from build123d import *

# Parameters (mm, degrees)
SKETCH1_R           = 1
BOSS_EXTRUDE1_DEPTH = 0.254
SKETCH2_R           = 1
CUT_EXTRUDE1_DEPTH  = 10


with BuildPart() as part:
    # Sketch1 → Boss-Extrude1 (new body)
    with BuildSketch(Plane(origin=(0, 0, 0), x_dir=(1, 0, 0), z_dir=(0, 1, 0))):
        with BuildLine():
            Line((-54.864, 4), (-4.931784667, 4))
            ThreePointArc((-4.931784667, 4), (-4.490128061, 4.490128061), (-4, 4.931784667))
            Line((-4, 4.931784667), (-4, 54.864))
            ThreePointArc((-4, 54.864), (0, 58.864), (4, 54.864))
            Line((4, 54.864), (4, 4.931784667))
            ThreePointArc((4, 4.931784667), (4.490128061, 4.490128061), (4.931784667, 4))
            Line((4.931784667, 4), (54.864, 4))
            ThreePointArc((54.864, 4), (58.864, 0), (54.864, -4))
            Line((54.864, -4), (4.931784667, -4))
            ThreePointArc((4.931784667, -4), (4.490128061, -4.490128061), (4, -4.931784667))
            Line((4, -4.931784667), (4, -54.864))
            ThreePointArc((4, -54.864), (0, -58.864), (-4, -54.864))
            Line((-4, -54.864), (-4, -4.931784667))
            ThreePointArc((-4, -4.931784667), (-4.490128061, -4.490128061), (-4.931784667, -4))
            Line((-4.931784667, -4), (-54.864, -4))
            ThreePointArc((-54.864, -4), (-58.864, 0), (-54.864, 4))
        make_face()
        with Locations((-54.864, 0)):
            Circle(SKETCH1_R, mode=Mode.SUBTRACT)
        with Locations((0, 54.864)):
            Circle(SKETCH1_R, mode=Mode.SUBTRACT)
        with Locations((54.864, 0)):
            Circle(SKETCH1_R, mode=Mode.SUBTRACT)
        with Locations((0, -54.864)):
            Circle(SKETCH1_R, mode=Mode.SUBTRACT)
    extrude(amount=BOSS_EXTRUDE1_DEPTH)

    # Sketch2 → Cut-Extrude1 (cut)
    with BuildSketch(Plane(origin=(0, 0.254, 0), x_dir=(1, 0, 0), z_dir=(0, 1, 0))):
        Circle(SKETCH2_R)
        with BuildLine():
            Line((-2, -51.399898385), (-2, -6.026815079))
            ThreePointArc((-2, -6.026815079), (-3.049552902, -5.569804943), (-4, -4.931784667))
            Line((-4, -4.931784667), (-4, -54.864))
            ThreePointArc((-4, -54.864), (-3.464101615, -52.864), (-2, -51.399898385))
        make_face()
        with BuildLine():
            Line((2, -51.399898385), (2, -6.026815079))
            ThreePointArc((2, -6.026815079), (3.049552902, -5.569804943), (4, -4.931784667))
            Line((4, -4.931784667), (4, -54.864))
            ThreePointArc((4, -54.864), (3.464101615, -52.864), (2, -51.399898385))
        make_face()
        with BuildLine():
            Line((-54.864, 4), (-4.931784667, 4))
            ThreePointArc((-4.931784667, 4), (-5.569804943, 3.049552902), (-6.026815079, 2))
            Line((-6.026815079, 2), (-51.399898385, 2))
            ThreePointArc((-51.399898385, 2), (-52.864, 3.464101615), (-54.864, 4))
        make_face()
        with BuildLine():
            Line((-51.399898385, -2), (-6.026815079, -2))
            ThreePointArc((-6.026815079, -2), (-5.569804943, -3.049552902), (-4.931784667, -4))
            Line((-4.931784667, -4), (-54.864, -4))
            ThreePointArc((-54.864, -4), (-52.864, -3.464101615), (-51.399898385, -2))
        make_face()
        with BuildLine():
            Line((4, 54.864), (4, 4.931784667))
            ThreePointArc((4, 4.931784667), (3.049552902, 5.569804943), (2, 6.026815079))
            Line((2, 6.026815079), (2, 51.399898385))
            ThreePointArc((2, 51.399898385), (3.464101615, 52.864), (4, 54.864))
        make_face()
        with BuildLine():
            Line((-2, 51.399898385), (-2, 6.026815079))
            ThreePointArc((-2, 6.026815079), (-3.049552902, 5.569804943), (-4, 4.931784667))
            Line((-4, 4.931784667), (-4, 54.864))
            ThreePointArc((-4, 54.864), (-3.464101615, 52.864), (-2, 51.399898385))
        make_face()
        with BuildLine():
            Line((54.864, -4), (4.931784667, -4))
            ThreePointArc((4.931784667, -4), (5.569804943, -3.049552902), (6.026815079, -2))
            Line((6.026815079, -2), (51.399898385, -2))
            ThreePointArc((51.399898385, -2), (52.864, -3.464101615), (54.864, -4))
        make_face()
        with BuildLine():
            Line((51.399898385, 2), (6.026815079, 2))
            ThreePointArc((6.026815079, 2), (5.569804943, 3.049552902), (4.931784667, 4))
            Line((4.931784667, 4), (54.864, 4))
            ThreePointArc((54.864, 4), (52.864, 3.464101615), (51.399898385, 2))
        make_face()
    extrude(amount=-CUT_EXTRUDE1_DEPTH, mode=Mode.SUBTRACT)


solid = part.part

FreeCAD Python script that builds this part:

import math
import FreeCAD as App
import Part
import Sketcher

V = App.Vector
Q = App.Units.Quantity

doc = App.newDocument("Part")
body = doc.addObject("PartDesign::Body", "Body")

sketch1 = body.newObject("Sketcher::SketchObject", "Sketch")
sketch1.AttachmentSupport = (doc.getObject("XZ_Plane"), [""])
sketch1.MapMode = "FlatFace"
sketch1.addGeometry(Part.LineSegment(V(-4.9, -4, 0), V(-54.9, -4, 0)), False)
sketch1.addGeometry(Part.ArcOfCircle(Part.Circle(V(-54.9, 0, 0), V(0, 0, 1), 4), math.radians(90), math.radians(270)), False)
sketch1.addGeometry(Part.LineSegment(V(-54.9, 4, 0), V(-4.9, 4, 0)), False)
sketch1.addGeometry(Part.ArcOfCircle(Part.Circle(V(0, 0, 0), V(0, 0, 1), 6.3), math.radians(129.04), math.radians(140.96)), False)
sketch1.addGeometry(Part.LineSegment(V(-4, 4.9, 0), V(-4, 54.9, 0)), False)
sketch1.addGeometry(Part.ArcOfCircle(Part.Circle(V(0, 54.9, 0), V(0, 0, 1), 4), math.radians(0), math.radians(180)), False)
sketch1.addGeometry(Part.LineSegment(V(4, 54.9, 0), V(4, 4.9, 0)), False)
sketch1.addGeometry(Part.ArcOfCircle(Part.Circle(V(0, 0, 0), V(0, 0, 1), 6.3), math.radians(39.04), math.radians(50.96)), False)
sketch1.addGeometry(Part.LineSegment(V(4.9, 4, 0), V(54.9, 4, 0)), False)
sketch1.addGeometry(Part.ArcOfCircle(Part.Circle(V(54.9, 0, 0), V(0, 0, 1), 4), math.radians(-90), math.radians(90)), False)
sketch1.addGeometry(Part.LineSegment(V(54.9, -4, 0), V(4.9, -4, 0)), False)
sketch1.addGeometry(Part.ArcOfCircle(Part.Circle(V(0, 0, 0), V(0, 0, 1), 6.3), math.radians(-50.96), math.radians(-39.04)), False)
sketch1.addGeometry(Part.LineSegment(V(4, -4.9, 0), V(4, -54.9, 0)), False)
sketch1.addGeometry(Part.ArcOfCircle(Part.Circle(V(0, -54.9, 0), V(0, 0, 1), 4), math.radians(180), math.radians(360)), False)
sketch1.addGeometry(Part.LineSegment(V(-4, -54.9, 0), V(-4, -4.9, 0)), False)
sketch1.addGeometry(Part.ArcOfCircle(Part.Circle(V(0, 0, 0), V(0, 0, 1), 6.3), math.radians(-140.96), math.radians(-129.04)), False)
sketch1.addGeometry(Part.Circle(V(0, 54.9, 0), V(0, 0, 1), 1), False)
sketch1.addGeometry(Part.Circle(V(54.9, 0, 0), V(0, 0, 1), 1), False)
sketch1.addGeometry(Part.Circle(V(-54.9, 0, 0), V(0, 0, 1), 1), False)
sketch1.addGeometry(Part.Circle(V(0, -54.9, 0), V(0, 0, 1), 1), False)
sketch1.addConstraint(Sketcher.Constraint("Tangent", 0, 2, 1, 2))
sketch1.addConstraint(Sketcher.Constraint("Tangent", 1, 1, 2, 1))
sketch1.addConstraint(Sketcher.Constraint("Coincident", 2, 2, 3, 2))
sketch1.addConstraint(Sketcher.Constraint("Coincident", 3, 1, 4, 1))
sketch1.addConstraint(Sketcher.Constraint("Tangent", 4, 2, 5, 2))
sketch1.addConstraint(Sketcher.Constraint("Tangent", 5, 1, 6, 1))
sketch1.addConstraint(Sketcher.Constraint("Coincident", 6, 2, 7, 2))
sketch1.addConstraint(Sketcher.Constraint("Coincident", 7, 1, 8, 1))
sketch1.addConstraint(Sketcher.Constraint("Tangent", 8, 2, 9, 2))
sketch1.addConstraint(Sketcher.Constraint("Tangent", 9, 1, 10, 1))
sketch1.addConstraint(Sketcher.Constraint("Coincident", 10, 2, 11, 2))
sketch1.addConstraint(Sketcher.Constraint("Coincident", 11, 1, 12, 1))
sketch1.addConstraint(Sketcher.Constraint("Tangent", 12, 2, 13, 2))
sketch1.addConstraint(Sketcher.Constraint("Tangent", 13, 1, 14, 1))
sketch1.addConstraint(Sketcher.Constraint("Coincident", 14, 2, 15, 2))
sketch1.addConstraint(Sketcher.Constraint("Coincident", 15, 1, 0, 1))
sketch1.addConstraint(Sketcher.Constraint("Horizontal", 0))
sketch1.addConstraint(Sketcher.Constraint("Horizontal", 2))
sketch1.addConstraint(Sketcher.Constraint("Vertical", 4))
sketch1.addConstraint(Sketcher.Constraint("Vertical", 6))
sketch1.addConstraint(Sketcher.Constraint("Horizontal", 8))
sketch1.addConstraint(Sketcher.Constraint("Horizontal", 10))
sketch1.addConstraint(Sketcher.Constraint("Vertical", 12))
sketch1.addConstraint(Sketcher.Constraint("Vertical", 14))
sketch1.addConstraint(Sketcher.Constraint("Coincident", 3, 3, -1, 1))
sketch1.addConstraint(Sketcher.Constraint("Coincident", 7, 3, -1, 1))
sketch1.addConstraint(Sketcher.Constraint("Coincident", 11, 3, -1, 1))
sketch1.addConstraint(Sketcher.Constraint("Coincident", 15, 3, -1, 1))
sketch1.addConstraint(Sketcher.Constraint("Coincident", 16, 3, 5, 3))
sketch1.addConstraint(Sketcher.Constraint("Coincident", 17, 3, 9, 3))
sketch1.addConstraint(Sketcher.Constraint("Coincident", 18, 3, 1, 3))
sketch1.addConstraint(Sketcher.Constraint("Coincident", 19, 3, 13, 3))
sketch1.addConstraint(Sketcher.Constraint("Equal", 1, 5))
sketch1.addConstraint(Sketcher.Constraint("Equal", 3, 7))
sketch1.addConstraint(Sketcher.Constraint("Equal", 5, 9))
sketch1.addConstraint(Sketcher.Constraint("Equal", 7, 11))
sketch1.addConstraint(Sketcher.Constraint("Equal", 9, 13))
sketch1.addConstraint(Sketcher.Constraint("Equal", 11, 15))
sketch1.addConstraint(Sketcher.Constraint("Equal", 16, 17))
sketch1.addConstraint(Sketcher.Constraint("Equal", 17, 18))
sketch1.addConstraint(Sketcher.Constraint("Equal", 18, 19))
sketch1.addConstraint(Sketcher.Constraint("Symmetric", 1, 3, 9, 3, -1, 1))
sketch1.addConstraint(Sketcher.Constraint("Symmetric", 5, 3, 13, 3, -1, 1))
sketch1.addConstraint(Sketcher.Constraint("PointOnObject", 1, 3, -1))
sketch1.addConstraint(Sketcher.Constraint("PointOnObject", 5, 3, -2))
sketch1.addConstraint(Sketcher.Constraint("Equal", 10, 4))
sketch1.addConstraint(Sketcher.Constraint("Diameter", 16, Q("2 mm")))
sketch1.addConstraint(Sketcher.Constraint("Radius", 1, Q("4 mm")))
sketch1.addConstraint(Sketcher.Constraint("Radius", 3, Q("6.35 mm")))
sketch1.addConstraint(Sketcher.Constraint("DistanceX", 1, 3, -1, 1, Q("54.864 mm")))
pad1 = body.newObject("PartDesign::Pad", "Pad")
pad1.Profile = sketch1
pad1.Length = 0.254
pad1.Reversed = True

sketch2 = body.newObject("Sketcher::SketchObject", "Sketch001")
sketch2.AttachmentSupport = (doc.getObject("XZ_Plane"), [""])
sketch2.MapMode = "FlatFace"
sketch2.AttachmentOffset = App.Placement(V(0, 0, -0.254), App.Rotation())
sketch2.addGeometry(Part.Circle(V(0, 0, 0), V(0, 0, 1), 1), False)
sketch2.addGeometry(Part.LineSegment(V(-2, 51.4, 0), V(-2, 6, 0)), False)
sketch2.addGeometry(Part.ArcOfCircle(Part.Circle(V(0, 0, 0), V(0, 0, 1), 6.3), math.radians(108), math.radians(129)), False)
sketch2.addGeometry(Part.LineSegment(V(-4, 4.9, 0), V(-4, 54.9, 0)), False)
sketch2.addGeometry(Part.ArcOfCircle(Part.Circle(V(0, 54.9, 0), V(0, 0, 1), 4), math.radians(180), math.radians(240)), False)
sketch2.addGeometry(Part.LineSegment(V(2, 6, 0), V(2, 51.4, 0)), False)
sketch2.addGeometry(Part.ArcOfCircle(Part.Circle(V(0, 54.9, 0), V(0, 0, 1), 4), math.radians(-60), math.radians(0)), False)
sketch2.addGeometry(Part.LineSegment(V(4, 54.9, 0), V(4, 4.9, 0)), False)
sketch2.addGeometry(Part.ArcOfCircle(Part.Circle(V(0, 0, 0), V(0, 0, 1), 6.3), math.radians(51), math.radians(72)), False)
sketch2.addGeometry(Part.LineSegment(V(-4.9, -4, 0), V(-54.9, -4, 0)), False)
sketch2.addGeometry(Part.ArcOfCircle(Part.Circle(V(-54.9, 0, 0), V(0, 0, 1), 4), math.radians(-90), math.radians(-30)), False)
sketch2.addGeometry(Part.LineSegment(V(-51.4, -2, 0), V(-6, -2, 0)), False)
sketch2.addGeometry(Part.ArcOfCircle(Part.Circle(V(0, 0, 0), V(0, 0, 1), 6.3), math.radians(-162), math.radians(-141)), False)
sketch2.addGeometry(Part.LineSegment(V(-6, 2, 0), V(-51.4, 2, 0)), False)
sketch2.addGeometry(Part.ArcOfCircle(Part.Circle(V(-54.9, 0, 0), V(0, 0, 1), 4), math.radians(30), math.radians(90)), False)
sketch2.addGeometry(Part.LineSegment(V(-54.9, 4, 0), V(-4.9, 4, 0)), False)
sketch2.addGeometry(Part.ArcOfCircle(Part.Circle(V(0, 0, 0), V(0, 0, 1), 6.3), math.radians(141), math.radians(162)), False)
sketch2.addGeometry(Part.LineSegment(V(4, -4.9, 0), V(4, -54.9, 0)), False)
sketch2.addGeometry(Part.ArcOfCircle(Part.Circle(V(0, -54.9, 0), V(0, 0, 1), 4), math.radians(0), math.radians(60)), False)
sketch2.addGeometry(Part.LineSegment(V(2, -51.4, 0), V(2, -6, 0)), False)
sketch2.addGeometry(Part.ArcOfCircle(Part.Circle(V(0, 0, 0), V(0, 0, 1), 6.3), math.radians(-72), math.radians(-51)), False)
sketch2.addGeometry(Part.LineSegment(V(-2, -6, 0), V(-2, -51.4, 0)), False)
sketch2.addGeometry(Part.ArcOfCircle(Part.Circle(V(0, -54.9, 0), V(0, 0, 1), 4), math.radians(120), math.radians(180)), False)
sketch2.addGeometry(Part.LineSegment(V(-4, -54.9, 0), V(-4, -4.9, 0)), False)
sketch2.addGeometry(Part.ArcOfCircle(Part.Circle(V(0, 0, 0), V(0, 0, 1), 6.3), math.radians(-129), math.radians(-108)), False)
sketch2.addGeometry(Part.LineSegment(V(4.9, 4, 0), V(54.9, 4, 0)), False)
sketch2.addGeometry(Part.ArcOfCircle(Part.Circle(V(54.9, 0, 0), V(0, 0, 1), 4), math.radians(90), math.radians(150)), False)
sketch2.addGeometry(Part.LineSegment(V(51.4, 2, 0), V(6, 2, 0)), False)
sketch2.addGeometry(Part.ArcOfCircle(Part.Circle(V(0, 0, 0), V(0, 0, 1), 6.3), math.radians(18), math.radians(39)), False)
sketch2.addGeometry(Part.LineSegment(V(6, -2, 0), V(51.4, -2, 0)), False)
sketch2.addGeometry(Part.ArcOfCircle(Part.Circle(V(54.9, 0, 0), V(0, 0, 1), 4), math.radians(-150), math.radians(-90)), False)
sketch2.addGeometry(Part.LineSegment(V(54.9, -4, 0), V(4.9, -4, 0)), False)
sketch2.addGeometry(Part.ArcOfCircle(Part.Circle(V(0, 0, 0), V(0, 0, 1), 6.3), math.radians(-39), math.radians(-18)), False)
sketch2.addConstraint(Sketcher.Constraint("Coincident", 1, 2, 2, 1))
sketch2.addConstraint(Sketcher.Constraint("Coincident", 2, 2, 3, 1))
sketch2.addConstraint(Sketcher.Constraint("Tangent", 3, 2, 4, 1))
sketch2.addConstraint(Sketcher.Constraint("Coincident", 4, 2, 1, 1))
sketch2.addConstraint(Sketcher.Constraint("Coincident", 5, 2, 6, 1))
sketch2.addConstraint(Sketcher.Constraint("Tangent", 6, 2, 7, 1))
sketch2.addConstraint(Sketcher.Constraint("Coincident", 7, 2, 8, 1))
sketch2.addConstraint(Sketcher.Constraint("Coincident", 8, 2, 5, 1))
sketch2.addConstraint(Sketcher.Constraint("Tangent", 9, 2, 10, 1))
sketch2.addConstraint(Sketcher.Constraint("Coincident", 10, 2, 11, 1))
sketch2.addConstraint(Sketcher.Constraint("Coincident", 11, 2, 12, 1))
sketch2.addConstraint(Sketcher.Constraint("Coincident", 12, 2, 9, 1))
sketch2.addConstraint(Sketcher.Constraint("Coincident", 13, 2, 14, 1))
sketch2.addConstraint(Sketcher.Constraint("Tangent", 14, 2, 15, 1))
sketch2.addConstraint(Sketcher.Constraint("Coincident", 15, 2, 16, 1))
sketch2.addConstraint(Sketcher.Constraint("Coincident", 16, 2, 13, 1))
sketch2.addConstraint(Sketcher.Constraint("Tangent", 17, 2, 18, 1))
sketch2.addConstraint(Sketcher.Constraint("Coincident", 18, 2, 19, 1))
sketch2.addConstraint(Sketcher.Constraint("Coincident", 19, 2, 20, 1))
sketch2.addConstraint(Sketcher.Constraint("Coincident", 20, 2, 17, 1))
sketch2.addConstraint(Sketcher.Constraint("Coincident", 21, 2, 22, 1))
sketch2.addConstraint(Sketcher.Constraint("Tangent", 22, 2, 23, 1))
sketch2.addConstraint(Sketcher.Constraint("Coincident", 23, 2, 24, 1))
sketch2.addConstraint(Sketcher.Constraint("Coincident", 24, 2, 21, 1))
sketch2.addConstraint(Sketcher.Constraint("Tangent", 25, 2, 26, 1))
sketch2.addConstraint(Sketcher.Constraint("Coincident", 26, 2, 27, 1))
sketch2.addConstraint(Sketcher.Constraint("Coincident", 27, 2, 28, 1))
sketch2.addConstraint(Sketcher.Constraint("Coincident", 28, 2, 25, 1))
sketch2.addConstraint(Sketcher.Constraint("Coincident", 29, 2, 30, 1))
sketch2.addConstraint(Sketcher.Constraint("Tangent", 30, 2, 31, 1))
sketch2.addConstraint(Sketcher.Constraint("Coincident", 31, 2, 32, 1))
sketch2.addConstraint(Sketcher.Constraint("Coincident", 32, 2, 29, 1))
sketch2.addConstraint(Sketcher.Constraint("Vertical", 1))
sketch2.addConstraint(Sketcher.Constraint("Vertical", 3))
sketch2.addConstraint(Sketcher.Constraint("Vertical", 5))
sketch2.addConstraint(Sketcher.Constraint("Vertical", 7))
sketch2.addConstraint(Sketcher.Constraint("Horizontal", 9))
sketch2.addConstraint(Sketcher.Constraint("Horizontal", 11))
sketch2.addConstraint(Sketcher.Constraint("Horizontal", 13))
sketch2.addConstraint(Sketcher.Constraint("Horizontal", 15))
sketch2.addConstraint(Sketcher.Constraint("Vertical", 17))
sketch2.addConstraint(Sketcher.Constraint("Vertical", 19))
sketch2.addConstraint(Sketcher.Constraint("Vertical", 21))
sketch2.addConstraint(Sketcher.Constraint("Vertical", 23))
sketch2.addConstraint(Sketcher.Constraint("Horizontal", 25))
sketch2.addConstraint(Sketcher.Constraint("Horizontal", 27))
sketch2.addConstraint(Sketcher.Constraint("Horizontal", 29))
sketch2.addConstraint(Sketcher.Constraint("Horizontal", 31))
sketch2.addConstraint(Sketcher.Constraint("Coincident", 0, 3, -1, 1))
sketch2.addConstraint(Sketcher.Constraint("Coincident", 2, 3, -1, 1))
sketch2.addConstraint(Sketcher.Constraint("Coincident", 8, 3, -1, 1))
sketch2.addConstraint(Sketcher.Constraint("Coincident", 12, 3, -1, 1))
sketch2.addConstraint(Sketcher.Constraint("Coincident", 16, 3, -1, 1))
sketch2.addConstraint(Sketcher.Constraint("Coincident", 20, 3, -1, 1))
sketch2.addConstraint(Sketcher.Constraint("Coincident", 24, 3, -1, 1))
sketch2.addConstraint(Sketcher.Constraint("Coincident", 28, 3, -1, 1))
sketch2.addConstraint(Sketcher.Constraint("Coincident", 32, 3, -1, 1))
sketch2.addConstraint(Sketcher.Constraint("Coincident", 6, 3, 4, 3))
sketch2.addConstraint(Sketcher.Constraint("Coincident", 14, 3, 10, 3))
sketch2.addConstraint(Sketcher.Constraint("Coincident", 22, 3, 18, 3))
sketch2.addConstraint(Sketcher.Constraint("Coincident", 30, 3, 26, 3))
sketch2.addConstraint(Sketcher.Constraint("Equal", 4, 6))
sketch2.addConstraint(Sketcher.Constraint("Equal", 2, 8))
sketch2.addConstraint(Sketcher.Constraint("Equal", 6, 10))
sketch2.addConstraint(Sketcher.Constraint("Equal", 8, 12))
sketch2.addConstraint(Sketcher.Constraint("Equal", 10, 14))
sketch2.addConstraint(Sketcher.Constraint("Equal", 12, 16))
sketch2.addConstraint(Sketcher.Constraint("Equal", 14, 18))
sketch2.addConstraint(Sketcher.Constraint("Equal", 16, 20))
sketch2.addConstraint(Sketcher.Constraint("Equal", 18, 22))
sketch2.addConstraint(Sketcher.Constraint("Equal", 20, 24))
sketch2.addConstraint(Sketcher.Constraint("Equal", 22, 26))
sketch2.addConstraint(Sketcher.Constraint("Equal", 24, 28))
sketch2.addConstraint(Sketcher.Constraint("Equal", 26, 30))
sketch2.addConstraint(Sketcher.Constraint("Equal", 28, 32))
sketch2.addConstraint(Sketcher.Constraint("Symmetric", 4, 3, 18, 3, -1, 1))
sketch2.addConstraint(Sketcher.Constraint("Symmetric", 10, 3, 26, 3, -1, 1))
sketch2.addConstraint(Sketcher.Constraint("Symmetric", 4, 2, 5, 2, -2))
sketch2.addConstraint(Sketcher.Constraint("Symmetric", 13, 2, 26, 2, -2))
sketch2.addConstraint(Sketcher.Constraint("Horizontal", 18, 2, 21, 2))
sketch2.addConstraint(Sketcher.Constraint("Horizontal", 11, 2, 29, 2))
sketch2.addConstraint(Sketcher.Constraint("Vertical", 10, 2, 13, 2))
sketch2.addConstraint(Sketcher.Constraint("Vertical", 8, 2, 18, 2))
sketch2.addConstraint(Sketcher.Constraint("Equal", 29, 1))
sketch2.addConstraint(Sketcher.Constraint("Equal", 31, 3))
sketch2.addConstraint(Sketcher.Constraint("Diameter", 0, Q("2 mm")))
sketch2.addConstraint(Sketcher.Constraint("Radius", 4, Q("4 mm")))
sketch2.addConstraint(Sketcher.Constraint("Radius", 2, Q("6.35 mm")))
sketch2.addConstraint(Sketcher.Constraint("DistanceX", 1, 2, -1, 1, Q("2 mm")))
sketch2.addConstraint(Sketcher.Constraint("DistanceY", -1, 1, 4, 3, Q("54.864 mm")))
pocket1 = body.newObject("PartDesign::Pocket", "Pocket")
pocket1.Profile = sketch2
pocket1.Length = 10
pocket1.Reversed = True

doc.recompute()
